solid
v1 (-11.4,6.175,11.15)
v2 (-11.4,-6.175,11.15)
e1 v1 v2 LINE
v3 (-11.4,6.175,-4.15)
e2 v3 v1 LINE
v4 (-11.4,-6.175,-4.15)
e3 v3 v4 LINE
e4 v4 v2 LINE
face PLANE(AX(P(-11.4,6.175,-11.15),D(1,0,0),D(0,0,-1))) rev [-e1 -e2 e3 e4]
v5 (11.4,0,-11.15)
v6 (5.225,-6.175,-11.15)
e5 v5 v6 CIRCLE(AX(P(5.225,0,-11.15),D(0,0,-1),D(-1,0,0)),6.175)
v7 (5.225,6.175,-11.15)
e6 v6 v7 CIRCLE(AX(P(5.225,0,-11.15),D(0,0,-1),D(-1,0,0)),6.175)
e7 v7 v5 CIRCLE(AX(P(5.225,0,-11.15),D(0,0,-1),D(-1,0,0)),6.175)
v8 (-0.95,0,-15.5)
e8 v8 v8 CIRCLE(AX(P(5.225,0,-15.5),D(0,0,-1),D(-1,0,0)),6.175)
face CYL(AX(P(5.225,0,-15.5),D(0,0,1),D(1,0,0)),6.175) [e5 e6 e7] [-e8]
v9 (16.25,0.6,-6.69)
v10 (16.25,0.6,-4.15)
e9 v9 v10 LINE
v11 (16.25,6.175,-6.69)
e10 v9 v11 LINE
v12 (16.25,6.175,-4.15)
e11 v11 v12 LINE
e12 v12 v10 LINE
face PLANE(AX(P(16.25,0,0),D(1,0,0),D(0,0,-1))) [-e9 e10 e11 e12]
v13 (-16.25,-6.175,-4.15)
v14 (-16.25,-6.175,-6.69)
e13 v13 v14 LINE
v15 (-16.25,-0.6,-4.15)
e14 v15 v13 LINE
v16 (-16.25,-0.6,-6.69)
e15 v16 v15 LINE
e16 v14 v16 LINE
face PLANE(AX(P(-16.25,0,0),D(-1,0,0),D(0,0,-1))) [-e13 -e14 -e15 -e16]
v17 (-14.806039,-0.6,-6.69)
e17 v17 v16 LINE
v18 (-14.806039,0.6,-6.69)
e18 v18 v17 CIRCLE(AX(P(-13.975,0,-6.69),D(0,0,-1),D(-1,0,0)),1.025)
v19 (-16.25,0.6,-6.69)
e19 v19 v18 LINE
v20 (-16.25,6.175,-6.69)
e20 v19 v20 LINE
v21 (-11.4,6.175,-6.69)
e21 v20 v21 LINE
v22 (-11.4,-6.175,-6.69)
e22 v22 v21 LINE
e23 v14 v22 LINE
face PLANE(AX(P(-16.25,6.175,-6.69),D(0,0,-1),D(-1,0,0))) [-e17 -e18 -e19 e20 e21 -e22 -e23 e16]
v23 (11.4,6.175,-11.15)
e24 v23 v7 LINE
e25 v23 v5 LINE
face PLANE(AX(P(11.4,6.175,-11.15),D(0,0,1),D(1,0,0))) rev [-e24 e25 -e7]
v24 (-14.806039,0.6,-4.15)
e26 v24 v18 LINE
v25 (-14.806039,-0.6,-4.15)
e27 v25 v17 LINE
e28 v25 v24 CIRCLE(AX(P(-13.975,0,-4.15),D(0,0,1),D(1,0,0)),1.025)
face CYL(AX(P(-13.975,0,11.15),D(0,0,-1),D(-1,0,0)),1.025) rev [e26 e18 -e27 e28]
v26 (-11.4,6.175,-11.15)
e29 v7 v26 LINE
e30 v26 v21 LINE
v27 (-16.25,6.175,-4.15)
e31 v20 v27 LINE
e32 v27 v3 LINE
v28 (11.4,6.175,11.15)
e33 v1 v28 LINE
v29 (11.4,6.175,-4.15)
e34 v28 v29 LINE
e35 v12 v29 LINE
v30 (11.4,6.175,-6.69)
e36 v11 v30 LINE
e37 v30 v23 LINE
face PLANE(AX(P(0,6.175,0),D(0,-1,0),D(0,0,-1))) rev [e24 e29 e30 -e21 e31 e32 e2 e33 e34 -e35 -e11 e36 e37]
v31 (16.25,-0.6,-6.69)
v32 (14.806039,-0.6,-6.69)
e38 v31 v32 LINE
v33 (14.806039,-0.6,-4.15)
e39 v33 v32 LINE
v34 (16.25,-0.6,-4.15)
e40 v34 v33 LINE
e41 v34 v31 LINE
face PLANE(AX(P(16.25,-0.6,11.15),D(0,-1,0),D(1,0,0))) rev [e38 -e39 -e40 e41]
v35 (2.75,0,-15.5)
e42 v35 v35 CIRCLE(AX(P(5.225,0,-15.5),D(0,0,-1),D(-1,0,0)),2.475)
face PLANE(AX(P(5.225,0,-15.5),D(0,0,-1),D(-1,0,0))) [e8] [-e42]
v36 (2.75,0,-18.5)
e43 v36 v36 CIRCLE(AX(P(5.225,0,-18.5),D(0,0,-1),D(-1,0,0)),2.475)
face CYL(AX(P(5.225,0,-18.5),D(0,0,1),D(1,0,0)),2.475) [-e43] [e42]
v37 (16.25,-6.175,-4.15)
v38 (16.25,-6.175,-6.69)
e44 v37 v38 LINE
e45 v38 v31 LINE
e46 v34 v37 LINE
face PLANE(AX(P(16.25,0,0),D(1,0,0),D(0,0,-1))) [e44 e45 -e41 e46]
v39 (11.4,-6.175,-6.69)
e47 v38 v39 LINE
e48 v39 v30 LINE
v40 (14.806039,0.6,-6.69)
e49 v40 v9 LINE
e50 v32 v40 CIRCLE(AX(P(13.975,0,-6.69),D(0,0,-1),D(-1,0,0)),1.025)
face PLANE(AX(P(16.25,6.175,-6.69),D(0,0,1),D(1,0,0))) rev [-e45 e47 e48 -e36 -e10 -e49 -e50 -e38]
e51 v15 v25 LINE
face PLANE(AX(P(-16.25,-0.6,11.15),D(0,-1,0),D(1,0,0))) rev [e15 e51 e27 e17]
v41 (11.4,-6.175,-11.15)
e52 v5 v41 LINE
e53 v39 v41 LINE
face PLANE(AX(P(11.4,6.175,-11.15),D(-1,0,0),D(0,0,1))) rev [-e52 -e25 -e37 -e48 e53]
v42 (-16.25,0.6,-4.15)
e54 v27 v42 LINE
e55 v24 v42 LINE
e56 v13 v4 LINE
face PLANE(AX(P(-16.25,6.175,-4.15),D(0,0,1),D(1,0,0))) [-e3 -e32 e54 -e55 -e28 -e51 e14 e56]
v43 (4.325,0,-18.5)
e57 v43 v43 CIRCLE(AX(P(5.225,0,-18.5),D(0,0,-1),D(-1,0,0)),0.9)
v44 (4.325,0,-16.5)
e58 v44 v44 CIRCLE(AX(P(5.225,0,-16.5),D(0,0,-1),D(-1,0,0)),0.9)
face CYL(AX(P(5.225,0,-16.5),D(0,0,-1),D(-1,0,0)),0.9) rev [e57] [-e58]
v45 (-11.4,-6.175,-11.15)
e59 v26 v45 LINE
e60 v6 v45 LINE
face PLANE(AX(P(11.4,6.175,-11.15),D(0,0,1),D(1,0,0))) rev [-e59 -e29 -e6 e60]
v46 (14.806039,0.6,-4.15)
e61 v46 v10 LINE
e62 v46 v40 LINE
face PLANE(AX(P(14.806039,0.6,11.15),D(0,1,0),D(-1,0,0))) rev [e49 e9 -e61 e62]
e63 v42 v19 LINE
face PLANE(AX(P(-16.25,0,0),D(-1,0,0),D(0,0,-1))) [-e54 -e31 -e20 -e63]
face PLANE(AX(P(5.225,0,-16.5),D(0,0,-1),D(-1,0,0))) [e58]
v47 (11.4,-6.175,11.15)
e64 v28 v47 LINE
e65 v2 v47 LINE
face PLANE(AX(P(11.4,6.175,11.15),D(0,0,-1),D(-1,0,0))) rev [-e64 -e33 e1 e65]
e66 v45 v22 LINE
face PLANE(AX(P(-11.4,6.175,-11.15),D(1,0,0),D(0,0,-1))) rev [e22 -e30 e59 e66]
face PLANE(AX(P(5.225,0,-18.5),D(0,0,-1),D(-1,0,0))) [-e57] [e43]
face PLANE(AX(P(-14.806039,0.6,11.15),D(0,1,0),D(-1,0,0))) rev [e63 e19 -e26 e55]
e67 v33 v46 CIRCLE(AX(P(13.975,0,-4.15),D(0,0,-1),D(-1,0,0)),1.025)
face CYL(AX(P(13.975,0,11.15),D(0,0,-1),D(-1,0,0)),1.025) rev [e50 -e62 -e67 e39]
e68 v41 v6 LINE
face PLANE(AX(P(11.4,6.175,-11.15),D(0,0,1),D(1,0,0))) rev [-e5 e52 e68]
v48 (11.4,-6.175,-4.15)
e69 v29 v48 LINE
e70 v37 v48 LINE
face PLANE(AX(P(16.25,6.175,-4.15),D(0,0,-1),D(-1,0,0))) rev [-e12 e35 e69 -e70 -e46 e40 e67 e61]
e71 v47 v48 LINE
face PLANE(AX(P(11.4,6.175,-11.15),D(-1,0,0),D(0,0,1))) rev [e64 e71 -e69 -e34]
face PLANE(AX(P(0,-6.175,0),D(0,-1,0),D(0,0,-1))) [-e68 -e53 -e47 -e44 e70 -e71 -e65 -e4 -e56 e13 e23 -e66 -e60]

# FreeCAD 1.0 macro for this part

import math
import FreeCAD as App
import Part
import Sketcher
from FreeCAD import Vector

doc = App.newDocument("Part")
body = doc.addObject("PartDesign::Body", "Body")

# Sketch on XZ plane
sketch1 = doc.addObject("Sketcher::SketchObject", "Sketch")
body.addObject(sketch1)
sketch1.AttachmentSupport = (doc.XZ_Plane, [""])
sketch1.MapMode = "FlatFace"
sketch1.addGeometry([
    Part.LineSegment(Vector(-11, -11, 0), Vector(-11, 11, 0)),
    Part.LineSegment(Vector(-11, 11, 0), Vector(11, 11, 0)),
    Part.LineSegment(Vector(11, 11, 0), Vector(11, -11, 0)),
    Part.LineSegment(Vector(11, -11, 0), Vector(-11, -11, 0)),
], False)
sketch1.addConstraint([
    Sketcher.Constraint("Coincident", 0, 2, 1, 1),
    Sketcher.Constraint("Coincident", 1, 2, 2, 1),
    Sketcher.Constraint("Coincident", 2, 2, 3, 1),
    Sketcher.Constraint("Coincident", 3, 2, 0, 1),
    Sketcher.Constraint("Vertical", 0),
    Sketcher.Constraint("Horizontal", 1),
    Sketcher.Constraint("Vertical", 2),
    Sketcher.Constraint("Horizontal", 3),
    Sketcher.Constraint("Symmetric", 0, 2, 2, 2, -1, 1),
    Sketcher.Constraint("DistanceX", 1, 1, 1, 2, 22.8),
    Sketcher.Constraint("DistanceY", 0, 1, 0, 2, 22.3),
])
pad1 = doc.addObject("PartDesign::Pad", "Pad")
body.addObject(pad1)
pad1.Profile = sketch1
pad1.Length = 12.35
pad1.Midplane = True

# Sketch on YZ plane
sketch2 = doc.addObject("Sketcher::SketchObject", "Sketch001")
body.addObject(sketch2)
sketch2.AttachmentSupport = (doc.YZ_Plane, [""])
sketch2.MapMode = "FlatFace"
sketch2.AttachmentOffset = App.Placement(Vector(0, 0, 11.4), App.Rotation())
sketch2.addGeometry([
    Part.LineSegment(Vector(6.2, -4.2, 0), Vector(-6.2, -4.2, 0)),
    Part.LineSegment(Vector(-6.2, -4.2, 0), Vector(-6.2, -6.7, 0)),
    Part.LineSegment(Vector(-6.2, -6.7, 0), Vector(6.2, -6.7, 0)),
    Part.LineSegment(Vector(6.2, -6.7, 0), Vector(6.2, -4.2, 0)),
], False)
sketch2.addConstraint([
    Sketcher.Constraint("Coincident", 0, 2, 1, 1),
    Sketcher.Constraint("Coincident", 1, 2, 2, 1),
    Sketcher.Constraint("Coincident", 2, 2, 3, 1),
    Sketcher.Constraint("Coincident", 3, 2, 0, 1),
    Sketcher.Constraint("Horizontal", 0),
    Sketcher.Constraint("Vertical", 1),
    Sketcher.Constraint("Horizontal", 2),
    Sketcher.Constraint("Vertical", 3),
    Sketcher.Constraint("DistanceX", 0, 2, 0, 1, 12.35),
    Sketcher.Constraint("DistanceY", 1, 2, 1, 1, 2.54),
    Sketcher.Constraint("DistanceY", 0, 2, -1, 1, 4.15),
    Sketcher.Constraint("DistanceX", 0, 2, -1, 1, 6.175),
])
pad2 = doc.addObject("PartDesign::Pad", "Pad001")
body.addObject(pad2)
pad2.Profile = sketch2
pad2.Length = 4.85
doc.recompute()

mirrored = doc.addObject("PartDesign::Mirrored", "Mirrored")
body.addObject(mirrored)
mirrored.Originals = [pad2]
mirrored.MirrorPlane = (doc.YZ_Plane, [""])
body.Tip = mirrored

# Sketch on XY plane
sketch3 = doc.addObject("Sketcher::SketchObject", "Sketch002")
body.addObject(sketch3)
sketch3.AttachmentSupport = (doc.XY_Plane, [""])
sketch3.MapMode = "FlatFace"
sketch3.AttachmentOffset = App.Placement(Vector(0, 0, -6.69), App.Rotation())
sketch3.addGeometry([
    Part.LineSegment(Vector(14.8, 0.6, 0), Vector(16.2, 0.6, 0)),  # 0
    Part.LineSegment(Vector(16.2, 0.6, 0), Vector(16.2, -0.6, 0)),  # 1
    Part.LineSegment(Vector(16.2, -0.6, 0), Vector(14.8, -0.6, 0)),  # 2
    Part.ArcOfCircle(Part.Circle(Vector(14, 0, 0), Vector(0, 0, 1), 1), math.radians(36), math.radians(324)),  # 3
    Part.LineSegment(Vector(-16.2, 0.6, 0), Vector(-14.8, 0.6, 0)),  # 4
    Part.ArcOfCircle(Part.Circle(Vector(-14, 0, 0), Vector(0, 0, 1), 1), math.radians(-144), math.radians(144)),  # 5
    Part.LineSegment(Vector(-14.8, -0.6, 0), Vector(-16.2, -0.6, 0)),  # 6
    Part.LineSegment(Vector(-16.2, -0.6, 0), Vector(-16.2, 0.6, 0)),  # 7
], False)
sketch3.addConstraint([
    Sketcher.Constraint("Coincident", 0, 2, 1, 1),
    Sketcher.Constraint("Coincident", 1, 2, 2, 1),
    Sketcher.Constraint("Coincident", 2, 2, 3, 2),
    Sketcher.Constraint("Coincident", 3, 1, 0, 1),
    Sketcher.Constraint("Coincident", 4, 2, 5, 2),
    Sketcher.Constraint("Coincident", 5, 1, 6, 1),
    Sketcher.Constraint("Coincident", 6, 2, 7, 1),
    Sketcher.Constraint("Coincident", 7, 2, 4, 1),
    Sketcher.Constraint("Horizontal", 0),
    Sketcher.Constraint("Vertical", 1),
    Sketcher.Constraint("Horizontal", 2),
    Sketcher.Constraint("Horizontal", 4),
    Sketcher.Constraint("Horizontal", 6),
    Sketcher.Constraint("Vertical", 7),
    Sketcher.Constraint("Equal", 3, 5),
    Sketcher.Constraint("Symmetric", 3, 3, 5, 3, -1, 1),
    Sketcher.Constraint("Symmetric", 0, 2, 6, 2, -1, 1),
    Sketcher.Constraint("Symmetric", 3, 1, 4, 2, -2),
    Sketcher.Constraint("Horizontal", 2, 2, 5, 1),
    Sketcher.Constraint("DistanceY", 1, 2, 1, 1, 1.2),
    Sketcher.Constraint("Radius", 3, 1.025),
    Sketcher.Constraint("DistanceX", -1, 1, 0, 2, 16.25),
    Sketcher.Constraint("DistanceX", 5, 3, 3, 3, 27.95),
])
pocket1 = doc.addObject("PartDesign::Pocket", "Pocket")
body.addObject(pocket1)
pocket1.Profile = sketch3
pocket1.Type = "ThroughAll"
pocket1.Reversed = True

# Sketch on XY plane
sketch4 = doc.addObject("Sketcher::SketchObject", "Sketch003")
body.addObject(sketch4)
sketch4.AttachmentSupport = (doc.XY_Plane, [""])
sketch4.MapMode = "FlatFace"
sketch4.AttachmentOffset = App.Placement(Vector(0, 0, -11.15), App.Rotation())
sketch4.addGeometry(Part.Circle(Vector(5, 0, 0), Vector(0, 0, 1), 6), False)
sketch4.addConstraint([
    Sketcher.Constraint("PointOnObject", 0, 3, -1),
    Sketcher.Constraint("Diameter", 0, 12.35),
    Sketcher.Constraint("DistanceX", -1, 1, 0, 3, 5.225),
])
pad3 = doc.addObject("PartDesign::Pad", "Pad002")
body.addObject(pad3)
pad3.Profile = sketch4
pad3.Length = 4.35
pad3.Reversed = True

# Sketch on XY plane
sketch5 = doc.addObject("Sketcher::SketchObject", "Sketch004")
body.addObject(sketch5)
sketch5.AttachmentSupport = (doc.XY_Plane, [""])
sketch5.MapMode = "FlatFace"
sketch5.AttachmentOffset = App.Placement(Vector(0, 0, -15.5), App.Rotation())
sketch5.addGeometry(Part.Circle(Vector(5.2, 0, 0), Vector(0, 0, 1), 2.5), False)
sketch5.addConstraint([
    Sketcher.Constraint("PointOnObject", 0, 3, -1),
    Sketcher.Constraint("Diameter", 0, 4.95),
    Sketcher.Constraint("DistanceX", -1, 1, 0, 3, 5.225),
])
pad4 = doc.addObject("PartDesign::Pad", "Pad003")
body.addObject(pad4)
pad4.Profile = sketch5
pad4.Length = 3
pad4.Reversed = True

# Sketch on XY plane
sketch6 = doc.addObject("Sketcher::SketchObject", "Sketch005")
body.addObject(sketch6)
sketch6.AttachmentSupport = (doc.XY_Plane, [""])
sketch6.MapMode = "FlatFace"
sketch6.AttachmentOffset = App.Placement(Vector(0, 0, -18.5), App.Rotation())
sketch6.addGeometry(Part.Circle(Vector(5.2, 0, 0), Vector(0, 0, 1), 0.9), False)
sketch6.addConstraint([
    Sketcher.Constraint("PointOnObject", 0, 3, -1),
    Sketcher.Constraint("Diameter", 0, 1.8),
    Sketcher.Constraint("DistanceX", -1, 1, 0, 3, 5.225),
])
pocket2 = doc.addObject("PartDesign::Pocket", "Pocket001")
body.addObject(pocket2)
pocket2.Profile = sketch6
pocket2.Length = 2
pocket2.Reversed = True

doc.recompute()
